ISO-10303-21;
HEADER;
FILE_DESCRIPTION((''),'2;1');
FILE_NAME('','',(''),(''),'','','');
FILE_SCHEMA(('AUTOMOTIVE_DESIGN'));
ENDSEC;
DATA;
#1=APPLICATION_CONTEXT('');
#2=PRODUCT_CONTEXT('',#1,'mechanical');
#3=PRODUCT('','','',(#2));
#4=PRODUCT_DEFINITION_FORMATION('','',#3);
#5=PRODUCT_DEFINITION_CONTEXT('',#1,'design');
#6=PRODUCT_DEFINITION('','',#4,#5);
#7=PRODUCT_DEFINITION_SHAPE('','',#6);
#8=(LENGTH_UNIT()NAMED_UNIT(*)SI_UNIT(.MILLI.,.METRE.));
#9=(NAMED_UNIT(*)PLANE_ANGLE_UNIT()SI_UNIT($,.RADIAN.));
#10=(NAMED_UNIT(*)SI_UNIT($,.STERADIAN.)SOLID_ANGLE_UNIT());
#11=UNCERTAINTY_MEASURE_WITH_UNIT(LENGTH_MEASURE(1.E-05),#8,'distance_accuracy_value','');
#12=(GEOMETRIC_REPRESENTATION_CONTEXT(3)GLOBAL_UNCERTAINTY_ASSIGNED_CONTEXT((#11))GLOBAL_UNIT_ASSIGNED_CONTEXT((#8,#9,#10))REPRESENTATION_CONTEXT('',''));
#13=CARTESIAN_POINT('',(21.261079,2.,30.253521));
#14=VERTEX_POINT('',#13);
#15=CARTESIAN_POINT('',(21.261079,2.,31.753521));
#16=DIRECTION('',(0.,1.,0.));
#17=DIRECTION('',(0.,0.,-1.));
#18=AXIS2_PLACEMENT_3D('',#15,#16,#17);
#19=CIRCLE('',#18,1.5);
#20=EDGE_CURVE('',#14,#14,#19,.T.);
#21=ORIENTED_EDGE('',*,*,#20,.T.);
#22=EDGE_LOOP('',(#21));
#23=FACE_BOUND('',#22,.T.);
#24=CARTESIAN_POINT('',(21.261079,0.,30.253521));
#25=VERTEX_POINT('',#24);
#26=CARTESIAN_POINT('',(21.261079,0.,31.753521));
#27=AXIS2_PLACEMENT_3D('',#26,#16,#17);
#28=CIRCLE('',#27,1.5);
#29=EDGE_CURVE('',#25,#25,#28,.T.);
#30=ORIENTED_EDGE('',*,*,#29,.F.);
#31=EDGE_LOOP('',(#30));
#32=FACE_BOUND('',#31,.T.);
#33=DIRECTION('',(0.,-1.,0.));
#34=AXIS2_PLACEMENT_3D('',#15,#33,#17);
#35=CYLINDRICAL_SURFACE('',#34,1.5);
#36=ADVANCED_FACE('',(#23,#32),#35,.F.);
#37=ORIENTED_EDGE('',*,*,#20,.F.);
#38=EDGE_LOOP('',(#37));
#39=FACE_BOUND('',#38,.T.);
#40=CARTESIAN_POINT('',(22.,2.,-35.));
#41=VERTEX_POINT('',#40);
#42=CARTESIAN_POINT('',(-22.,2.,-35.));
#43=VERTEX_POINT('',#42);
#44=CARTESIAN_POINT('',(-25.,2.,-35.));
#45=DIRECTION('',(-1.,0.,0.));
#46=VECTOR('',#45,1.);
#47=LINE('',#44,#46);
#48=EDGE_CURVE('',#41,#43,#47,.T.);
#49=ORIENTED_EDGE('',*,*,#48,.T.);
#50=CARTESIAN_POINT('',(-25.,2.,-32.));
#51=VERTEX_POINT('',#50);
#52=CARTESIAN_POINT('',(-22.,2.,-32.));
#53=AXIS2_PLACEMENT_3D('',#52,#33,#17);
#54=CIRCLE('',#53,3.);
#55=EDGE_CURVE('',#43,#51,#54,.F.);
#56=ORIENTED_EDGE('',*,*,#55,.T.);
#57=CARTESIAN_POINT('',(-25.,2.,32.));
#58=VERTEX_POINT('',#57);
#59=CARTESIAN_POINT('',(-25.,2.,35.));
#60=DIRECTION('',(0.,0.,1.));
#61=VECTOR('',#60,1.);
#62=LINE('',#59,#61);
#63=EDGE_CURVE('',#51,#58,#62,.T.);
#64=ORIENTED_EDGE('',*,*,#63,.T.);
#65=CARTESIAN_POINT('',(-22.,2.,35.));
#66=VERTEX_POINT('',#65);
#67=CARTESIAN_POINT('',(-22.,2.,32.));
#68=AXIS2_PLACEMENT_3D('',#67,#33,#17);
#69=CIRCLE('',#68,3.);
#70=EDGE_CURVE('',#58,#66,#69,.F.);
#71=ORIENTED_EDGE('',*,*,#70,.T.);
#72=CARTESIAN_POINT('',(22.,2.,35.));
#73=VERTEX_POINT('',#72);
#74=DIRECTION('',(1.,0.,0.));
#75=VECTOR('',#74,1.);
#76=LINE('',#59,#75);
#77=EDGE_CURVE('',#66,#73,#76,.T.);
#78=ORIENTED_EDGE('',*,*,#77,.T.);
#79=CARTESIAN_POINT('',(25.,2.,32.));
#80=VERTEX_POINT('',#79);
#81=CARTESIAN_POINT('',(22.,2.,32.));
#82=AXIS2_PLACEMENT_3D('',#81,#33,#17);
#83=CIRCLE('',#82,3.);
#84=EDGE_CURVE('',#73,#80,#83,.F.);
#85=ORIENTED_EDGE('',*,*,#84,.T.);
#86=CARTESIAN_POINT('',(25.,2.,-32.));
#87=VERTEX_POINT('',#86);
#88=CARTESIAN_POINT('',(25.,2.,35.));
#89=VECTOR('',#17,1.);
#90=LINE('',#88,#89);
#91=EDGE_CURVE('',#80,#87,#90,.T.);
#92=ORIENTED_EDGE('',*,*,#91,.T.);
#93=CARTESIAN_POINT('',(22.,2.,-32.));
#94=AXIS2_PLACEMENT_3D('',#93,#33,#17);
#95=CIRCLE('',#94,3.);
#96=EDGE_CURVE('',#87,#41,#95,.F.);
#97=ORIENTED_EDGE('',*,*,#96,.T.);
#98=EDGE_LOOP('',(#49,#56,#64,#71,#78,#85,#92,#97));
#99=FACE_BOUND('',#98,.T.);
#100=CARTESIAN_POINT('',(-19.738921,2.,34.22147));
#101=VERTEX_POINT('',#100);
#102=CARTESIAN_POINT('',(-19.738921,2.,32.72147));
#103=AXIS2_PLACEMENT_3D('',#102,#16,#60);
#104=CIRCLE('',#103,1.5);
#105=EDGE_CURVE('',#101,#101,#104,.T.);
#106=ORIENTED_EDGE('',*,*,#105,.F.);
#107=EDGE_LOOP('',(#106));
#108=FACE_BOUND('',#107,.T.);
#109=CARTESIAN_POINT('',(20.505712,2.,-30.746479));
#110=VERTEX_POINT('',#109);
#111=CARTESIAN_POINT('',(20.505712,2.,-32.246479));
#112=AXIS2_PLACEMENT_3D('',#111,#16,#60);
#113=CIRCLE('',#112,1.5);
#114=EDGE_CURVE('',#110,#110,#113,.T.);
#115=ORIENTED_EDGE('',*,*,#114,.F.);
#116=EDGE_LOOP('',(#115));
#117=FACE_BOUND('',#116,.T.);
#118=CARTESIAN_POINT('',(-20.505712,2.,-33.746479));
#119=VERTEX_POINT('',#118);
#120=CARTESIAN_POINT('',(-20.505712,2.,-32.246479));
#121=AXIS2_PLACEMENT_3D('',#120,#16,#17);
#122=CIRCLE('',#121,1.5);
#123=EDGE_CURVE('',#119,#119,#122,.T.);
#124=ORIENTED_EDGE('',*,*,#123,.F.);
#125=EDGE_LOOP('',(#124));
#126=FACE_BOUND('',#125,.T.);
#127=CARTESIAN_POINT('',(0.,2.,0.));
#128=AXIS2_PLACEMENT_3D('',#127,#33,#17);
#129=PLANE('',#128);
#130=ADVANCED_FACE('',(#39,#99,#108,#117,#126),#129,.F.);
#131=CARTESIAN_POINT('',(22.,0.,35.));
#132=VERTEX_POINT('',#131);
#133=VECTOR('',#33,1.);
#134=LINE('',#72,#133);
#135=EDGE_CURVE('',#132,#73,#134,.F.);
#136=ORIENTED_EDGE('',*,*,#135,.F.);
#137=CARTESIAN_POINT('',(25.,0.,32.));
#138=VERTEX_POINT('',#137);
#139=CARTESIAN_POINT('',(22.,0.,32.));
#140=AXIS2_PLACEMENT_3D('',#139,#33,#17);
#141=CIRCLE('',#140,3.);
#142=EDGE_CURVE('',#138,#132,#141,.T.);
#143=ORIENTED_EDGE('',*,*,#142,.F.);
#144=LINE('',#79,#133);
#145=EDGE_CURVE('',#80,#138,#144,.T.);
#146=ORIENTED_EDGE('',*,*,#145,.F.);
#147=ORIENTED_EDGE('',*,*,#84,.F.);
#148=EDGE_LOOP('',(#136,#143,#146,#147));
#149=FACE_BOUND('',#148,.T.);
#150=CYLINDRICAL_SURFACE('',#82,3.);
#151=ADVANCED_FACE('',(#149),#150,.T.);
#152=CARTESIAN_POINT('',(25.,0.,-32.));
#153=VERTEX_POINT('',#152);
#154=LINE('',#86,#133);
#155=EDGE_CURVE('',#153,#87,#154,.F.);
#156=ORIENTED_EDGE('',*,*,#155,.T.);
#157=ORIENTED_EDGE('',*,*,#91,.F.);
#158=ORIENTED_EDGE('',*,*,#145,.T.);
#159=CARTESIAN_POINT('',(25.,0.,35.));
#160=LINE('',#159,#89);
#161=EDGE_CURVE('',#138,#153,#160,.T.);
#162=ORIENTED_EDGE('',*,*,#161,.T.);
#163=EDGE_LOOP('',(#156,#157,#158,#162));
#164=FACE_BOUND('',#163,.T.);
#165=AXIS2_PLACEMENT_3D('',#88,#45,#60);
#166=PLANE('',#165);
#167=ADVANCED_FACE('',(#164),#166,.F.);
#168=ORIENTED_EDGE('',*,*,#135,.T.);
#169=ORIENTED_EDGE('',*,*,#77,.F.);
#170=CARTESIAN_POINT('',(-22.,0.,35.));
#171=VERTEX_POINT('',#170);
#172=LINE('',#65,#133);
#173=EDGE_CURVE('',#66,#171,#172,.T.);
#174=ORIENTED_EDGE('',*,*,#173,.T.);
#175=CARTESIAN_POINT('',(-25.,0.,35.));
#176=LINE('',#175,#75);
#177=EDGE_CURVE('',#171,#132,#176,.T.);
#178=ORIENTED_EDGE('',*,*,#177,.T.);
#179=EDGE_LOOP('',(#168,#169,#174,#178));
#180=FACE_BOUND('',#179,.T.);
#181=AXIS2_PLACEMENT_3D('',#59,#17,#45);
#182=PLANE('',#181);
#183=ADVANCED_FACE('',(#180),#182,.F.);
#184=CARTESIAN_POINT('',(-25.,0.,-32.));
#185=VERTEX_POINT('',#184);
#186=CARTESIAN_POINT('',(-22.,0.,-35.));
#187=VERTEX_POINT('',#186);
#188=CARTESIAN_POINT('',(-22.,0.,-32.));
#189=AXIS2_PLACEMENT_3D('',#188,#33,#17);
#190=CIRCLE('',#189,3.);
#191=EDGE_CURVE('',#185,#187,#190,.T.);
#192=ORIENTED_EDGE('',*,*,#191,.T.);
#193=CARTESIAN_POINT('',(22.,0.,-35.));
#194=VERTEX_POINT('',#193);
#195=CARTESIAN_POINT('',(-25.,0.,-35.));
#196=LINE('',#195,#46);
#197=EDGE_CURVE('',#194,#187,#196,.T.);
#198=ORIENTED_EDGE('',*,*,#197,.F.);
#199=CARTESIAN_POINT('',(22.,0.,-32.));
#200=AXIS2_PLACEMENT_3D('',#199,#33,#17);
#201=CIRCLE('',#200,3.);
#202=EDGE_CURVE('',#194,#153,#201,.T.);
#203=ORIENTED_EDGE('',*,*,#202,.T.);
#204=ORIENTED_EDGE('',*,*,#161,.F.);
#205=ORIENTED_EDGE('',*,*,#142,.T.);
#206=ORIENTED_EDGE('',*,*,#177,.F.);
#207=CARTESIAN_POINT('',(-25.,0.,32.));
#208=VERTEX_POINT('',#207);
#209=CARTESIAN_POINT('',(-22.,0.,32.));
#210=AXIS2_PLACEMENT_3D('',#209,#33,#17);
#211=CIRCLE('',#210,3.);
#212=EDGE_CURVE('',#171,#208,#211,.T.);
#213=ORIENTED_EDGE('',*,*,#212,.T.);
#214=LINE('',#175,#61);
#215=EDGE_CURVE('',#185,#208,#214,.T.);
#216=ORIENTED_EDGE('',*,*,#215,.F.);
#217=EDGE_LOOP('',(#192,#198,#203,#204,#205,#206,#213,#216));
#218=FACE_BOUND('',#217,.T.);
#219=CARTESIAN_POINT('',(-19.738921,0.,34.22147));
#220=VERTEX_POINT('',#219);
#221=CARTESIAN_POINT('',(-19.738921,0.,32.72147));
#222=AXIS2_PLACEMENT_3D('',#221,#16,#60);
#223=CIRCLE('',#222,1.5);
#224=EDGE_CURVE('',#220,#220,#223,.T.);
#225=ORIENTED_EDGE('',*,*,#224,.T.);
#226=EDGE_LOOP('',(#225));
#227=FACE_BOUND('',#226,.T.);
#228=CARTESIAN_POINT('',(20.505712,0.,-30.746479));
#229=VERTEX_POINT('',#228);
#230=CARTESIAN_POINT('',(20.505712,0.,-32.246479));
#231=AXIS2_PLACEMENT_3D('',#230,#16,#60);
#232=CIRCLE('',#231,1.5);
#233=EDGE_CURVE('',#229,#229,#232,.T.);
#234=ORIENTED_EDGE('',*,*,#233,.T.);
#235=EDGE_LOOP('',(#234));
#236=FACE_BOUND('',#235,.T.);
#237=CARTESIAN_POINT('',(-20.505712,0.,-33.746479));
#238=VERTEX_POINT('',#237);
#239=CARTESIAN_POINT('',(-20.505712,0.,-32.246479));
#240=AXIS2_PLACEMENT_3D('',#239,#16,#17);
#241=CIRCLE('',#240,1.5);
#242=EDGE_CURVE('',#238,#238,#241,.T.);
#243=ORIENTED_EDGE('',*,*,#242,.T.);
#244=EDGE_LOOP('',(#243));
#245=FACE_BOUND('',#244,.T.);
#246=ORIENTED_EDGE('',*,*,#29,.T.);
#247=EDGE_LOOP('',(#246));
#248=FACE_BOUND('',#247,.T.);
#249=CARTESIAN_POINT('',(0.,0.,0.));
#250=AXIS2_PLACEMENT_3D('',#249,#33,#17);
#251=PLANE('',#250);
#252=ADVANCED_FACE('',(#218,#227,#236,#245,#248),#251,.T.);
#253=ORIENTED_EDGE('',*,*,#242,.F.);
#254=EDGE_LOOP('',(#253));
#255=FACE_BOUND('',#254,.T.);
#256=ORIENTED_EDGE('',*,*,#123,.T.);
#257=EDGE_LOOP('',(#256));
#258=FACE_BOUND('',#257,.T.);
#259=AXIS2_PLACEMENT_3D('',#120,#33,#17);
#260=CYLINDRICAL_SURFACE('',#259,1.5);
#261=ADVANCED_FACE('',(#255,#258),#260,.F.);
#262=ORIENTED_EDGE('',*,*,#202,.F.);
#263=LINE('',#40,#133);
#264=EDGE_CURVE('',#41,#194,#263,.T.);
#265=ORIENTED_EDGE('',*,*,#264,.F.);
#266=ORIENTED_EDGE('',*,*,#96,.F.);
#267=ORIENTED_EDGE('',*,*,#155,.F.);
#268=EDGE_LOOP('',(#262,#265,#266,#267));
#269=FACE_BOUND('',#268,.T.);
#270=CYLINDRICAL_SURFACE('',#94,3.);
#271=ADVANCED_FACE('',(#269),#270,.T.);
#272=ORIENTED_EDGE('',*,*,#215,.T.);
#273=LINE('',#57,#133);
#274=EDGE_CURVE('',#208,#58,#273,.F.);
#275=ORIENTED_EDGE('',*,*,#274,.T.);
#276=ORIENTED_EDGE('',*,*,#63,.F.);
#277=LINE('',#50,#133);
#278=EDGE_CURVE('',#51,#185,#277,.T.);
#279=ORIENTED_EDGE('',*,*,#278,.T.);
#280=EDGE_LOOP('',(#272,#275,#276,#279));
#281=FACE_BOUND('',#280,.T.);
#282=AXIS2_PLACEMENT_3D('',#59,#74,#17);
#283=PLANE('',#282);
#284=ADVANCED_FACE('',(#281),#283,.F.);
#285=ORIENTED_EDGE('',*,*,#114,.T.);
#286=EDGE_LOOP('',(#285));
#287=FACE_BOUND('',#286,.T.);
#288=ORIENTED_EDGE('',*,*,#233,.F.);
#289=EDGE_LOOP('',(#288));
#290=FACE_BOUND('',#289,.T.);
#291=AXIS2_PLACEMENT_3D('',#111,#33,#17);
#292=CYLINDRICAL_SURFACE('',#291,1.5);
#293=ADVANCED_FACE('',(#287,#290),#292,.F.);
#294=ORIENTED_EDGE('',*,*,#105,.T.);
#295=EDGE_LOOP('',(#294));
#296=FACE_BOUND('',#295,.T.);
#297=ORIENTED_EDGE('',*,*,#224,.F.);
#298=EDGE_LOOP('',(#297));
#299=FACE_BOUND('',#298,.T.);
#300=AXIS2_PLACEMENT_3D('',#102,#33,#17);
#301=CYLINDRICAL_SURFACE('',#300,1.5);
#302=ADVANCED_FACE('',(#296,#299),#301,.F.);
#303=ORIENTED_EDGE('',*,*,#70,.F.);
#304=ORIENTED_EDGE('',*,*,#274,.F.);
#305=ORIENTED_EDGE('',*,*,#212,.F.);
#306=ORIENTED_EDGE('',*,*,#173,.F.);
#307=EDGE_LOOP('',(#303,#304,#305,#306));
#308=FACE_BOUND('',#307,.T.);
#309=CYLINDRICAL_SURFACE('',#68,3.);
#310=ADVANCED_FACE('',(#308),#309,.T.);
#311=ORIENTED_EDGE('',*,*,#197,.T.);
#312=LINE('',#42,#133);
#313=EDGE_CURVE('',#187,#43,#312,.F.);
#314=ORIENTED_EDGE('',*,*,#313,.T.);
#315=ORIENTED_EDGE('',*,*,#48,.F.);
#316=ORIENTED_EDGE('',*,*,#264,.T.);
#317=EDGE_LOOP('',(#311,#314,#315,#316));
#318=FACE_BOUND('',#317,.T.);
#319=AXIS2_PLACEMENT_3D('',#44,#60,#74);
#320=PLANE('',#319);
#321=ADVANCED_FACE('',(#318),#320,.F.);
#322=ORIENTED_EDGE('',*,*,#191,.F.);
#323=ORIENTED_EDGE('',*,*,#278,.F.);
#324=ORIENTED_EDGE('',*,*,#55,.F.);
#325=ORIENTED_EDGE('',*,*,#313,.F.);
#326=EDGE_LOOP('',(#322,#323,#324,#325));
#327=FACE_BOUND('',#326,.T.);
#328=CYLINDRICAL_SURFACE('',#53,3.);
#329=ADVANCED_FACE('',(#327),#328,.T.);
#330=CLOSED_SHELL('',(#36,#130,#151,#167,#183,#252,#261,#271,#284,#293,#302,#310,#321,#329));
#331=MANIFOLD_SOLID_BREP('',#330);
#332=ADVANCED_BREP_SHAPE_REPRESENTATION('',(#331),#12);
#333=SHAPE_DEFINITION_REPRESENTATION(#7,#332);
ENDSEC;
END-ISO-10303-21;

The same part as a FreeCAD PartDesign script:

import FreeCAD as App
import Part
import Sketcher

V = App.Vector


def edges_at(feature, points):
    """Names of the edges that pass closest to the given points."""
    edges = feature.Shape.Edges
    near = lambda p: min(range(len(edges)), key=lambda i: edges[i].distToShape(Part.Vertex(*p))[0])
    return sorted({f"Edge{near(p) + 1}" for p in points})

doc = App.newDocument("Part")
body = doc.addObject("PartDesign::Body", "Body")

sketch1 = body.newObject("Sketcher::SketchObject", "Sketch")
sketch1.AttachmentSupport = (doc.getObject("XZ_Plane"), [""])
sketch1.MapMode = "FlatFace"
sketch1.addGeometry([
    Part.LineSegment(V(-25, -35, 0), V(-25, 35, 0)),
    Part.LineSegment(V(-25, 35, 0), V(25, 35, 0)),
    Part.LineSegment(V(25, 35, 0), V(25, -35, 0)),
    Part.LineSegment(V(25, -35, 0), V(-25, -35, 0)),
    Part.Circle(V(-19.7, 32.7, 0), V(0, 0, 1), 1.5),
    Part.Circle(V(21.3, 31.8, 0), V(0, 0, 1), 1.5),
    Part.Circle(V(-20.5, -32.2, 0), V(0, 0, 1), 1.5),
    Part.Circle(V(20.5, -32.2, 0), V(0, 0, 1), 1.5),
], False)
sketch1.addConstraint([
    Sketcher.Constraint("Coincident", 0, 2, 1, 1),
    Sketcher.Constraint("Coincident", 1, 2, 2, 1),
    Sketcher.Constraint("Coincident", 2, 2, 3, 1),
    Sketcher.Constraint("Coincident", 3, 2, 0, 1),
    Sketcher.Constraint("Vertical", 0),
    Sketcher.Constraint("Horizontal", 1),
    Sketcher.Constraint("Vertical", 2),
    Sketcher.Constraint("Horizontal", 3),
    Sketcher.Constraint("Equal", 4, 5),
    Sketcher.Constraint("Equal", 5, 6),
    Sketcher.Constraint("Equal", 6, 7),
    Sketcher.Constraint("Symmetric", 0, 2, 2, 2, -1, 1),
    Sketcher.Constraint("Symmetric", 6, 3, 7, 3, -2),
    Sketcher.Constraint("Diameter", 4, 3.0),
    Sketcher.Constraint("DistanceX", 1, 1, 1, 2, 50.0),
    Sketcher.Constraint("DistanceY", 0, 1, 0, 2, 70.0),
    Sketcher.Constraint("DistanceX", 4, 3, 5, 3, 41.0),
    Sketcher.Constraint("DistanceY", 6, 3, 5, 3, 64.0),
    Sketcher.Constraint("DistanceX", 4, 3, -1, 1, 19.738921),
    Sketcher.Constraint("DistanceY", -1, 1, 4, 3, 32.72147),
    Sketcher.Constraint("DistanceY", -1, 1, 5, 3, 31.753521),
    Sketcher.Constraint("DistanceX", 6, 3, 4, 3, 0.766791),
])
pad1 = body.newObject("PartDesign::Pad", "Pad")
pad1.Profile = sketch1
pad1.Length = 2
pad1.Reversed = True
doc.recompute()

fillet = body.newObject("PartDesign::Fillet", "Fillet")
fillet.Base = (pad1, edges_at(pad1, [
    (25, 1, 35),
    (-25, 1, 35),
    (-25, 1, -35),
    (25, 1, -35),
]))
fillet.Radius = 3

doc.recompute()
